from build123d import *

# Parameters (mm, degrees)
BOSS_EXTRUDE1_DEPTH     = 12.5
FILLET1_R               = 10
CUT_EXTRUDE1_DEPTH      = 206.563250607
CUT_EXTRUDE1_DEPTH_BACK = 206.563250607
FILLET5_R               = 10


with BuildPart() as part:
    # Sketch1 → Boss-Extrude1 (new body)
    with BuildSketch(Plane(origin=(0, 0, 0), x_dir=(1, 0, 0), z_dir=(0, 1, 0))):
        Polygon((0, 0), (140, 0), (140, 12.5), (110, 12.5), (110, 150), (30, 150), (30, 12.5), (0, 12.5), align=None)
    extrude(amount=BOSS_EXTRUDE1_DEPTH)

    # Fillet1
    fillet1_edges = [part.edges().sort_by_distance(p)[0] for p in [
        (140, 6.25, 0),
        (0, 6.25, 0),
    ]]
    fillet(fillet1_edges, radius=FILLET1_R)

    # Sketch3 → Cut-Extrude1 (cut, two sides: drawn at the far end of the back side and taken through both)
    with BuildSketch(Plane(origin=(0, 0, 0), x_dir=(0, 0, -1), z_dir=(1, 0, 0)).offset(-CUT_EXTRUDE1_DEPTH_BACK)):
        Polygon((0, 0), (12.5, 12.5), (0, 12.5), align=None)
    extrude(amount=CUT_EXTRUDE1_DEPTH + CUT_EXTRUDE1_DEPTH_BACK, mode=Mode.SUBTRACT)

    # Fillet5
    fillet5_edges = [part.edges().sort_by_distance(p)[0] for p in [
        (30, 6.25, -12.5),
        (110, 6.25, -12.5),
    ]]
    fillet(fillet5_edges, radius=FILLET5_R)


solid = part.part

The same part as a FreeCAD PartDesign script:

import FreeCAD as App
import Part
import Sketcher
Q = App.Units.Quantity


def edges_at(feature, points):
    """Names of the edges that pass closest to the given points."""
    edges = feature.Shape.Edges
    near = lambda p: min(range(len(edges)), key=lambda i: edges[i].distToShape(Part.Vertex(*p))[0])
    return sorted({f"Edge{near(p) + 1}" for p in points})

doc = App.newDocument("Part")
body = doc.addObject("PartDesign::Body", "Body")

# Sketch on XZ plane
sketch1 = doc.addObject("Sketcher::SketchObject", "Sketch")
body.addObject(sketch1)
sketch1.AttachmentSupport = (doc.XZ_Plane, [""])
sketch1.MapMode = "FlatFace"
sketch1.addGeometry([
    Part.LineSegment(App.Vector(0, 0, 0), App.Vector(140, 0, 0)),  # 0
    Part.LineSegment(App.Vector(140, 0, 0), App.Vector(140, -12, 0)),  # 1
    Part.LineSegment(App.Vector(140, -12, 0), App.Vector(110, -12, 0)),  # 2
    Part.LineSegment(App.Vector(110, -12, 0), App.Vector(110, -150, 0)),  # 3
    Part.LineSegment(App.Vector(110, -150, 0), App.Vector(30, -150, 0)),  # 4
    Part.LineSegment(App.Vector(30, -150, 0), App.Vector(30, -12, 0)),  # 5
    Part.LineSegment(App.Vector(30, -12, 0), App.Vector(0, -12, 0)),  # 6
    Part.LineSegment(App.Vector(0, -12, 0), App.Vector(0, 0, 0)),  # 7
], False)
sketch1.addConstraint([
    Sketcher.Constraint("Coincident", 0, 2, 1, 1),
    Sketcher.Constraint("Coincident", 1, 2, 2, 1),
    Sketcher.Constraint("Coincident", 2, 2, 3, 1),
    Sketcher.Constraint("Coincident", 3, 2, 4, 1),
    Sketcher.Constraint("Coincident", 4, 2, 5, 1),
    Sketcher.Constraint("Coincident", 5, 2, 6, 1),
    Sketcher.Constraint("Coincident", 6, 2, 7, 1),
    Sketcher.Constraint("Coincident", 7, 2, 0, 1),
    Sketcher.Constraint("Horizontal", 0),
    Sketcher.Constraint("Vertical", 1),
    Sketcher.Constraint("Horizontal", 2),
    Sketcher.Constraint("Vertical", 3),
    Sketcher.Constraint("Horizontal", 4),
    Sketcher.Constraint("Vertical", 5),
    Sketcher.Constraint("Horizontal", 6),
    Sketcher.Constraint("Vertical", 7),
    Sketcher.Constraint("Coincident", 7, 2, -1, 1),
    Sketcher.Constraint("Horizontal", 2, 2, 5, 2),
    Sketcher.Constraint("Equal", 2, 6),
    Sketcher.Constraint("DistanceX", 0, 1, 0, 2, Q("140 mm")),
    Sketcher.Constraint("DistanceX", 2, 2, 2, 1, Q("30 mm")),
    Sketcher.Constraint("DistanceY", 1, 2, 1, 1, Q("12.5 mm")),
    Sketcher.Constraint("DistanceY", 3, 2, 3, 1, Q("137.5 mm")),
])
pad1 = doc.addObject("PartDesign::Pad", "Pad")
body.addObject(pad1)
pad1.Profile = sketch1
pad1.Length = 12.5
pad1.Reversed = True
doc.recompute()

fillet = doc.addObject("PartDesign::Fillet", "Fillet")
body.addObject(fillet)
fillet.Base = (pad1, edges_at(pad1, [(140, 6.25, 0), (0, 6.25, 0)]))
fillet.Radius = 10

# Sketch on YZ plane
sketch2 = doc.addObject("Sketcher::SketchObject", "Sketch001")
body.addObject(sketch2)
sketch2.AttachmentSupport = (doc.YZ_Plane, [""])
sketch2.MapMode = "FlatFace"
sketch2.addGeometry([
    Part.LineSegment(App.Vector(0, 0, 0), App.Vector(12, -12, 0)),
    Part.LineSegment(App.Vector(12, -12, 0), App.Vector(12, 0, 0)),
    Part.LineSegment(App.Vector(12, 0, 0), App.Vector(0, 0, 0)),
], False)
sketch2.addConstraint([
    Sketcher.Constraint("Coincident", 0, 2, 1, 1),
    Sketcher.Constraint("Coincident", 1, 2, 2, 1),
    Sketcher.Constraint("Coincident", 2, 2, 0, 1),
    Sketcher.Constraint("Vertical", 1),
    Sketcher.Constraint("Horizontal", 2),
    Sketcher.Constraint("Coincident", 2, 2, -1, 1),
    Sketcher.Constraint("Equal", 2, 1),
    Sketcher.Constraint("DistanceX", 2, 2, 2, 1, Q("12.5 mm")),
])
pocket1 = doc.addObject("PartDesign::Pocket", "Pocket")
body.addObject(pocket1)
pocket1.Profile = sketch2
pocket1.Type = "ThroughAll"
pocket1.Midplane = True
doc.recompute()

fillet2 = doc.addObject("PartDesign::Fillet", "Fillet001")
body.addObject(fillet2)
fillet2.Base = (pocket1, edges_at(pocket1, [(30, 6.25, -12.5), (110, 6.25, -12.5)]))
fillet2.Radius = 10

doc.recompute()
